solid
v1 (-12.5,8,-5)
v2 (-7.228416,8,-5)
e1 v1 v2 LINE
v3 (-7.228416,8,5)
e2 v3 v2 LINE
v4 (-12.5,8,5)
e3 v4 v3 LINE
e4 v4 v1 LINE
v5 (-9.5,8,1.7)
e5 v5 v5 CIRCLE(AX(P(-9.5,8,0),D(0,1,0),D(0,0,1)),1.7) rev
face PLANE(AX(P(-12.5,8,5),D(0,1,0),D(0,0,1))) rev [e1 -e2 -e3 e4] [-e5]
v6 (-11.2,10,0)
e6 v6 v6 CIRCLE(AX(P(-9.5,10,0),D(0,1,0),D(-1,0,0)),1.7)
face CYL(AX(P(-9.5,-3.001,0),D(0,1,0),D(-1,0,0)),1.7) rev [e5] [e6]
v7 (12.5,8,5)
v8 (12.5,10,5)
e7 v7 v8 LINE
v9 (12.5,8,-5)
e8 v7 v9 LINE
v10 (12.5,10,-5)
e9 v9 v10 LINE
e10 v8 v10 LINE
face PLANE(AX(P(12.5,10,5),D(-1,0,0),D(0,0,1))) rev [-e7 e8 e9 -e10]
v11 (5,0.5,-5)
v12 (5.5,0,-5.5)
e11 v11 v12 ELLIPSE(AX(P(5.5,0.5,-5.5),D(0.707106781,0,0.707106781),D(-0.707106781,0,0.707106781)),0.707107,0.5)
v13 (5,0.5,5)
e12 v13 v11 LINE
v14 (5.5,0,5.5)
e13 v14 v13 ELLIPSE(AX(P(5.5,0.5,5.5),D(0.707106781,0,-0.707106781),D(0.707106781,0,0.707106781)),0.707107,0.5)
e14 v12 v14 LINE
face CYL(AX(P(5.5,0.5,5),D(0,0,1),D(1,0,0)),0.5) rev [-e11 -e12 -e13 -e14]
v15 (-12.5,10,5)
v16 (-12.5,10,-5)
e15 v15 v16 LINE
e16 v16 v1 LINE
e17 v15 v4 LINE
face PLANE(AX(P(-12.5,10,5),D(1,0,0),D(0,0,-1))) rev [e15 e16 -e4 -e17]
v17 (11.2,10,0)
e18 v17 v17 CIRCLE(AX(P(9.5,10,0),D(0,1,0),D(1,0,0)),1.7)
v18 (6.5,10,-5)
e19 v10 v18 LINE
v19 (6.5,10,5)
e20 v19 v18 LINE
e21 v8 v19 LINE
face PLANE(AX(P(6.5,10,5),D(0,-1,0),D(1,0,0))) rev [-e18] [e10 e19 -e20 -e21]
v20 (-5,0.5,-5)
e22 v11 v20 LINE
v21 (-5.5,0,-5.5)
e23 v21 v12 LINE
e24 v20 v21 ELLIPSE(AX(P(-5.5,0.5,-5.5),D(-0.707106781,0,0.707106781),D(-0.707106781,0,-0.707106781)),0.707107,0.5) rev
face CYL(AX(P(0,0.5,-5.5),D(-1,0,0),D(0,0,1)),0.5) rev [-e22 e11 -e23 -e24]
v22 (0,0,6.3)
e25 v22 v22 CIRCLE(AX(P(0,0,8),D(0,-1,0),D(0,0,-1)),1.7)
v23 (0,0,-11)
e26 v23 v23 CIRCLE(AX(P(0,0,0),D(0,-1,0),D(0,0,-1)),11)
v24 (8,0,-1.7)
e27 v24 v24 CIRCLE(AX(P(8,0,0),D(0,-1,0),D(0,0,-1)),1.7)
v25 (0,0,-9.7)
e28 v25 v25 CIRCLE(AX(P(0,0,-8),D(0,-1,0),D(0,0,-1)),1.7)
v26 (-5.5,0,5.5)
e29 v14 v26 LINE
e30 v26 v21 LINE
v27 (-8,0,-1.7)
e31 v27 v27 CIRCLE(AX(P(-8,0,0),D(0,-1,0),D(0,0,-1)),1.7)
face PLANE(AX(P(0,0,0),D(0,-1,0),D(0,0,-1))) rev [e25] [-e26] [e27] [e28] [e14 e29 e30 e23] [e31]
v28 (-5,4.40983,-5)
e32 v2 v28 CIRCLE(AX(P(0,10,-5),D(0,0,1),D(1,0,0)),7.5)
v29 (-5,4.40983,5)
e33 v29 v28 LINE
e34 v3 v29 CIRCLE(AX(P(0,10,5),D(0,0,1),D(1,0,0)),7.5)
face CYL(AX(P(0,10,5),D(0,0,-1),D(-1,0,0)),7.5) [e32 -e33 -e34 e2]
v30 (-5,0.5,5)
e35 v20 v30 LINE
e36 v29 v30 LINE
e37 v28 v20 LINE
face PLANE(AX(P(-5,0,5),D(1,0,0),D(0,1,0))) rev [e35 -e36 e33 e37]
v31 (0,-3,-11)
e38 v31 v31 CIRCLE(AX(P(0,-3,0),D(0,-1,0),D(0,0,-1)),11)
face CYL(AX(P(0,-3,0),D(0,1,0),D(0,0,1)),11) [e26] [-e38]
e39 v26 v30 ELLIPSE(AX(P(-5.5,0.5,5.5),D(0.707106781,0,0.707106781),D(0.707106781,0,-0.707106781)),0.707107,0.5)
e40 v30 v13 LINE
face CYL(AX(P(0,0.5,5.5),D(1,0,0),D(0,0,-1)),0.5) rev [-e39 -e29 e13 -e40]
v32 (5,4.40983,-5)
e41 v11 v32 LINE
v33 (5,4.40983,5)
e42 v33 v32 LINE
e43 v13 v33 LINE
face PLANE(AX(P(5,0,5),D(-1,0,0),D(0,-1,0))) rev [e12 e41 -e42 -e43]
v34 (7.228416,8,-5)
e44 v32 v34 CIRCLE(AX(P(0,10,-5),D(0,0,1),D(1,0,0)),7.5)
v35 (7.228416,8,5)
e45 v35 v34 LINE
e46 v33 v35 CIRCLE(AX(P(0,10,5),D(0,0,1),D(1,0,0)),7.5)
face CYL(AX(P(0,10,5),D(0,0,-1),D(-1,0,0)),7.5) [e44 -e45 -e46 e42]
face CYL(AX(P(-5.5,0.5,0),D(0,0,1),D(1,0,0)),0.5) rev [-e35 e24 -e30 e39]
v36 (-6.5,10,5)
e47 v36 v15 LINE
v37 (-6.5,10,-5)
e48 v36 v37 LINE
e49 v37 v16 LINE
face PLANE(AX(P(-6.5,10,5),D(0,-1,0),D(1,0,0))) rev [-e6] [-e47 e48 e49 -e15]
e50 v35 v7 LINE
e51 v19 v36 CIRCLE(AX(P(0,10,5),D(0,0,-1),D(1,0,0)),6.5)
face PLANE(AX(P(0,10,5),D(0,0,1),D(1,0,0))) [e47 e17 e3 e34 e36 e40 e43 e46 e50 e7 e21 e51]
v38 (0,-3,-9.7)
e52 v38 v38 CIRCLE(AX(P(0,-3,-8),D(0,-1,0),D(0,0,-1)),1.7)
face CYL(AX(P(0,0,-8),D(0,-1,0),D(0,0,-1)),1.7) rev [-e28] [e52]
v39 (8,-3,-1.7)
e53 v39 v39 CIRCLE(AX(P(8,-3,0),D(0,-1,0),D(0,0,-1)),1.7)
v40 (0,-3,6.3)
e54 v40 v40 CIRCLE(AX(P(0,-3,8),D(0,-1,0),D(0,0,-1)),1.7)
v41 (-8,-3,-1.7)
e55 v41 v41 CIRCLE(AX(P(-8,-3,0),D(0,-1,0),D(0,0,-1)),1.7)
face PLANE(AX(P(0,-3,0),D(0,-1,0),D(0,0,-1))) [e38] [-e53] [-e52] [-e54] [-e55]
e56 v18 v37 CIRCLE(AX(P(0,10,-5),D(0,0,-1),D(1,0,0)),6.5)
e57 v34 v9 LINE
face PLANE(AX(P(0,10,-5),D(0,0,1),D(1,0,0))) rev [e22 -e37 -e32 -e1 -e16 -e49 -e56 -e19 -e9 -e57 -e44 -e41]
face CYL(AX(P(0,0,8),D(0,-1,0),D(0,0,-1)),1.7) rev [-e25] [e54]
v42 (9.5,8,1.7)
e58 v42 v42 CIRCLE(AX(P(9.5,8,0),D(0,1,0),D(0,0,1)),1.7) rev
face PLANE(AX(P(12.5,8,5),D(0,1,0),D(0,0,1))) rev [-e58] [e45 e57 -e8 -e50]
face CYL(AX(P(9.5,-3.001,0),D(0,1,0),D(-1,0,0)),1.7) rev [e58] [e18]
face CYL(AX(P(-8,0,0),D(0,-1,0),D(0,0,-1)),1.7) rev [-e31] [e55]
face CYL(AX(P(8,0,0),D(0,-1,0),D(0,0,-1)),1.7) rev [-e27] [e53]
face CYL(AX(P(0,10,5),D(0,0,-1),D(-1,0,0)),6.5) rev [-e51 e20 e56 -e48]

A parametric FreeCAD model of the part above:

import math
import FreeCAD as App
import Part
import Sketcher
from FreeCAD import Vector


def edges_at(feature, points):
    """Names of the edges that pass closest to the given points."""
    edges = feature.Shape.Edges
    near = lambda p: min(range(len(edges)), key=lambda i: edges[i].distToShape(Part.Vertex(*p))[0])
    return sorted({f"Edge{near(p) + 1}" for p in points})

doc = App.newDocument("Part")
body = doc.addObject("PartDesign::Body", "Body")

# Sketch on XY plane
sketch1 = body.newObject("Sketcher::SketchObject", "Sketch")
sketch1.AttachmentSupport = (doc.getObject("XY_Plane"), [""])
sketch1.MapMode = "FlatFace"
sketch1.addGeometry([
    Part.LineSegment(Vector(-5, 0, 0), Vector(5, 0, 0)),  # 0
    Part.LineSegment(Vector(5, 0, 0), Vector(5, 4.4, 0)),  # 1
    Part.ArcOfCircle(Part.Circle(Vector(0, 10, 0), Vector(0, 0, 1), 7.5), math.radians(-48), math.radians(-15)),  # 2
    Part.LineSegment(Vector(7.2, 8, 0), Vector(12.5, 8, 0)),  # 3
    Part.LineSegment(Vector(12.5, 8, 0), Vector(12.5, 10, 0)),  # 4
    Part.LineSegment(Vector(12.5, 10, 0), Vector(6.5, 10, 0)),  # 5
    Part.ArcOfCircle(Part.Circle(Vector(0, 10, 0), Vector(0, 0, 1), 6.5), math.radians(180), math.radians(360)),  # 6
    Part.LineSegment(Vector(-6.5, 10, 0), Vector(-12.5, 10, 0)),  # 7
    Part.LineSegment(Vector(-12.5, 10, 0), Vector(-12.5, 8, 0)),  # 8
    Part.LineSegment(Vector(-12.5, 8, 0), Vector(-7.2, 8, 0)),  # 9
    Part.ArcOfCircle(Part.Circle(Vector(0, 10, 0), Vector(0, 0, 1), 7.5), math.radians(-165), math.radians(-132)),  # 10
    Part.LineSegment(Vector(-5, 4.4, 0), Vector(-5, 0, 0)),  # 11
], False)
sketch1.addConstraint([
    Sketcher.Constraint("Coincident", 0, 2, 1, 1),
    Sketcher.Constraint("Coincident", 1, 2, 2, 1),
    Sketcher.Constraint("Coincident", 2, 2, 3, 1),
    Sketcher.Constraint("Coincident", 3, 2, 4, 1),
    Sketcher.Constraint("Coincident", 4, 2, 5, 1),
    Sketcher.Constraint("Coincident", 5, 2, 6, 2),
    Sketcher.Constraint("Coincident", 6, 1, 7, 1),
    Sketcher.Constraint("Coincident", 7, 2, 8, 1),
    Sketcher.Constraint("Coincident", 8, 2, 9, 1),
    Sketcher.Constraint("Coincident", 9, 2, 10, 1),
    Sketcher.Constraint("Coincident", 10, 2, 11, 1),
    Sketcher.Constraint("Coincident", 11, 2, 0, 1),
    Sketcher.Constraint("Horizontal", 0),
    Sketcher.Constraint("Vertical", 1),
    Sketcher.Constraint("Horizontal", 3),
    Sketcher.Constraint("Vertical", 4),
    Sketcher.Constraint("Horizontal", 5),
    Sketcher.Constraint("Horizontal", 7),
    Sketcher.Constraint("Vertical", 8),
    Sketcher.Constraint("Horizontal", 9),
    Sketcher.Constraint("Vertical", 11),
    Sketcher.Constraint("Coincident", 6, 3, 2, 3),
    Sketcher.Constraint("Coincident", 10, 3, 2, 3),
    Sketcher.Constraint("Equal", 2, 10),
    Sketcher.Constraint("Symmetric", 0, 2, 11, 2, -1, 1),
    Sketcher.Constraint("Symmetric", 5, 2, 6, 1, -2),
    Sketcher.Constraint("Symmetric", 3, 2, 8, 2, -2),
    Sketcher.Constraint("Horizontal", 10, 3, 4, 2),
    Sketcher.Constraint("Radius", 2, 7.5),
    Sketcher.Constraint("Radius", 6, 6.5),
    Sketcher.Constraint("DistanceX", 0, 1, 0, 2, 10.0),
    Sketcher.Constraint("DistanceX", 5, 2, 5, 1, 6.0),
    Sketcher.Constraint("DistanceY", 4, 1, 4, 2, 2.0),
    Sketcher.Constraint("DistanceY", -1, 1, 2, 3, 10.0),
])
pad1 = body.newObject("PartDesign::Pad", "Pad")
pad1.Profile = sketch1
pad1.Length = 10
pad1.Midplane = True

# Sketch on XZ plane
sketch2 = body.newObject("Sketcher::SketchObject", "Sketch001")
sketch2.AttachmentSupport = (doc.getObject("XZ_Plane"), [""])
sketch2.MapMode = "FlatFace"
sketch2.addGeometry(Part.Circle(Vector(0, 0, 0), Vector(0, 0, 1), 11), False)
sketch2.addConstraint([
    Sketcher.Constraint("Coincident", 0, 3, -1, 1),
    Sketcher.Constraint("Diameter", 0, 22.0),
])
pad2 = body.newObject("PartDesign::Pad", "Pad001")
pad2.Profile = sketch2
pad2.Length = 3

# Sketch on XZ plane
sketch3 = body.newObject("Sketcher::SketchObject", "Sketch002")
sketch3.AttachmentSupport = (doc.getObject("XZ_Plane"), [""])
sketch3.MapMode = "FlatFace"
sketch3.AttachmentOffset = App.Placement(Vector(0, 0, 3), App.Rotation())
sketch3.addGeometry([
    Part.Circle(Vector(0, 8, 0), Vector(0, 0, 1), 1.7),
    Part.Circle(Vector(8, 0, 0), Vector(0, 0, 1), 1.7),
    Part.Circle(Vector(0, -8, 0), Vector(0, 0, 1), 1.7),
    Part.Circle(Vector(-8, 0, 0), Vector(0, 0, 1), 1.7),
], False)
sketch3.addConstraint([
    Sketcher.Constraint("Equal", 0, 1),
    Sketcher.Constraint("Equal", 1, 2),
    Sketcher.Constraint("Equal", 2, 3),
    Sketcher.Constraint("Symmetric", 0, 3, 2, 3, -1, 1),
    Sketcher.Constraint("Symmetric", 1, 3, 3, 3, -1, 1),
    Sketcher.Constraint("PointOnObject", 0, 3, -2),
    Sketcher.Constraint("PointOnObject", 1, 3, -1),
    Sketcher.Constraint("Diameter", 0, 3.4),
    Sketcher.Constraint("DistanceY", -1, 1, 0, 3, 8.0),
    Sketcher.Constraint("DistanceX", -1, 1, 1, 3, 8.0),
])
pocket1 = body.newObject("PartDesign::Pocket", "Pocket")
pocket1.Profile = sketch3
pocket1.Length = 3
doc.recompute()

fillet = body.newObject("PartDesign::Fillet", "Fillet")
fillet.Base = (pocket1, edges_at(pocket1, [
    (0, 0, -5),
    (5, 0, 0),
    (-5, 0, 0),
    (0, 0, 5),
]))
fillet.Radius = 0.5

# Sketch on XZ plane
sketch4 = body.newObject("Sketcher::SketchObject", "Sketch003")
sketch4.AttachmentSupport = (doc.getObject("XZ_Plane"), [""])
sketch4.MapMode = "FlatFace"
sketch4.AttachmentOffset = App.Placement(Vector(0, 0, -10), App.Rotation())
sketch4.addGeometry(Part.Circle(Vector(-9.5, 0, 0), Vector(0, 0, 1), 1.7), False)
sketch4.addConstraint([
    Sketcher.Constraint("PointOnObject", 0, 3, -1),
    Sketcher.Constraint("Diameter", 0, 3.4),
    Sketcher.Constraint("DistanceX", 0, 3, -1, 1, 9.5),
])
pocket2 = body.newObject("PartDesign::Pocket", "Pocket001")
pocket2.Profile = sketch4
pocket2.Type = "UpToFirst"
pocket2.Reversed = True

# Sketch on XZ plane
sketch5 = body.newObject("Sketcher::SketchObject", "Sketch004")
sketch5.AttachmentSupport = (doc.getObject("XZ_Plane"), [""])
sketch5.MapMode = "FlatFace"
sketch5.AttachmentOffset = App.Placement(Vector(0, 0, -10), App.Rotation())
sketch5.addGeometry(Part.Circle(Vector(9.5, 0, 0), Vector(0, 0, 1), 1.7), False)
sketch5.addConstraint([
    Sketcher.Constraint("PointOnObject", 0, 3, -1),
    Sketcher.Constraint("Diameter", 0, 3.4),
    Sketcher.Constraint("DistanceX", -1, 1, 0, 3, 9.5),
])
pocket3 = body.newObject("PartDesign::Pocket", "Pocket002")
pocket3.Profile = sketch5
pocket3.Type = "UpToFirst"
pocket3.Reversed = True

doc.recompute()
